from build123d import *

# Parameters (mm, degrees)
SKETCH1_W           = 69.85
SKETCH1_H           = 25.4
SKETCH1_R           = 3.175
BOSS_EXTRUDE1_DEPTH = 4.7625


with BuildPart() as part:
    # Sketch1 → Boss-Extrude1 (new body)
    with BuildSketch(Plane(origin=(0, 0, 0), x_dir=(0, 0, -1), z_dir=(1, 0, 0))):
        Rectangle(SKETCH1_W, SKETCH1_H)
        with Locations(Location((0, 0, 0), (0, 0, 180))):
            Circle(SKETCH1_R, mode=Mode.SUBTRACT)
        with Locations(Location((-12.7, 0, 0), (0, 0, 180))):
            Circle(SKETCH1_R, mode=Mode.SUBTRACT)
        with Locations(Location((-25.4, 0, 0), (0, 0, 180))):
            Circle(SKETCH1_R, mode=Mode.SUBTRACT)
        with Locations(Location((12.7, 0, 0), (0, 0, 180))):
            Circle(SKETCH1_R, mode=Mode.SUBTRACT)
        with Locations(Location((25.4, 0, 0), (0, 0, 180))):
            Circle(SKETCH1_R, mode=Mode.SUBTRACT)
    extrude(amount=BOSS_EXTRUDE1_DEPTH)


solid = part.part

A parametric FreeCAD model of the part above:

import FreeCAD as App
import Part
import Sketcher
from FreeCAD import Vector
Q = App.Units.Quantity

doc = App.newDocument("Part")
body = doc.addObject("PartDesign::Body", "Body")

# Sketch on YZ plane
sketch1 = body.newObject("Sketcher::SketchObject", "Sketch")
sketch1.AttachmentSupport = (doc.getObject("YZ_Plane"), [""])
sketch1.MapMode = "FlatFace"
sketch1.addGeometry(Part.LineSegment(Vector(12.7, 34.9, 0), Vector(-12.7, 34.9, 0)), False)
sketch1.addGeometry(Part.LineSegment(Vector(-12.7, 34.9, 0), Vector(-12.7, -34.9, 0)), False)
sketch1.addGeometry(Part.LineSegment(Vector(-12.7, -34.9, 0), Vector(12.7, -34.9, 0)), False)
sketch1.addGeometry(Part.LineSegment(Vector(12.7, -34.9, 0), Vector(12.7, 34.9, 0)), False)
sketch1.addGeometry(Part.Circle(Vector(0, 25.4, 0), Vector(0, 0, 1), 3.2), False)
sketch1.addGeometry(Part.Circle(Vector(0, 12.7, 0), Vector(0, 0, 1), 3.2), False)
sketch1.addGeometry(Part.Circle(Vector(0, 0, 0), Vector(0, 0, 1), 3.2), False)
sketch1.addGeometry(Part.Circle(Vector(0, -12.7, 0), Vector(0, 0, 1), 3.2), False)
sketch1.addGeometry(Part.Circle(Vector(0, -25.4, 0), Vector(0, 0, 1), 3.2), False)
sketch1.addConstraint(Sketcher.Constraint("Coincident", 0, 2, 1, 1))
sketch1.addConstraint(Sketcher.Constraint("Coincident", 1, 2, 2, 1))
sketch1.addConstraint(Sketcher.Constraint("Coincident", 2, 2, 3, 1))
sketch1.addConstraint(Sketcher.Constraint("Coincident", 3, 2, 0, 1))
sketch1.addConstraint(Sketcher.Constraint("Horizontal", 0))
sketch1.addConstraint(Sketcher.Constraint("Vertical", 1))
sketch1.addConstraint(Sketcher.Constraint("Horizontal", 2))
sketch1.addConstraint(Sketcher.Constraint("Vertical", 3))
sketch1.addConstraint(Sketcher.Constraint("Coincident", 6, 3, -1, 1))
sketch1.addConstraint(Sketcher.Constraint("Equal", 4, 5))
sketch1.addConstraint(Sketcher.Constraint("Equal", 5, 6))
sketch1.addConstraint(Sketcher.Constraint("Equal", 6, 7))
sketch1.addConstraint(Sketcher.Constraint("Equal", 7, 8))
sketch1.addConstraint(Sketcher.Constraint("Symmetric", 5, 3, 7, 3, -1, 1))
sketch1.addConstraint(Sketcher.Constraint("Symmetric", 4, 3, 8, 3, -1, 1))
sketch1.addConstraint(Sketcher.Constraint("Symmetric", 0, 2, 2, 2, -1, 1))
sketch1.addConstraint(Sketcher.Constraint("PointOnObject", 4, 3, -2))
sketch1.addConstraint(Sketcher.Constraint("PointOnObject", 5, 3, -2))
sketch1.addConstraint(Sketcher.Constraint("Diameter", 4, Q("0.25 in")))
sketch1.addConstraint(Sketcher.Constraint("DistanceX", 0, 2, 0, 1, Q("1 in")))
sketch1.addConstraint(Sketcher.Constraint("DistanceY", -1, 1, 4, 3, Q("1 in")))
sketch1.addConstraint(Sketcher.Constraint("DistanceY", 7, 3, 5, 3, Q("1 in")))
sketch1.addConstraint(Sketcher.Constraint("DistanceY", 1, 2, 1, 1, Q("2.75 in")))
pad1 = body.newObject("PartDesign::Pad", "Pad")
pad1.Profile = sketch1
pad1.Length = Q("0.1875 in")

doc.recompute()
